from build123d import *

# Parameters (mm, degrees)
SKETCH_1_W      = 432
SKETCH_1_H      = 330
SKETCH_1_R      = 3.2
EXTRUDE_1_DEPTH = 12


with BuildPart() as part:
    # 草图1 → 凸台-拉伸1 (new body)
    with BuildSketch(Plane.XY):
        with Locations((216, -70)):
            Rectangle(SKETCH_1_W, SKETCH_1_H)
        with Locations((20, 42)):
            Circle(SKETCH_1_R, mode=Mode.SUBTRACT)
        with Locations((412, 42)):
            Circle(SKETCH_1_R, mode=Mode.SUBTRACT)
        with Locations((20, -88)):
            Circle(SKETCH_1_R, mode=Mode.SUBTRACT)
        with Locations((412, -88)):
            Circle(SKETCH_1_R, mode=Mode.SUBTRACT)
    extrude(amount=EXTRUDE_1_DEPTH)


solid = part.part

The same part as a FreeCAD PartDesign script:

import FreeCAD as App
import Part
import Sketcher
from FreeCAD import Vector
Q = App.Units.Quantity


def add_polygon(sketch, points):
    """Adds a closed chain of lines whose ends are joined by coincident constraints."""
    first, n = sketch.GeometryCount, len(points)
    for a, b in zip(points, points[1:] + points[:1]):
        sketch.addGeometry(Part.LineSegment(App.Vector(*a, 0), App.Vector(*b, 0)), False)
    for i in range(n):
        sketch.addConstraint(Sketcher.Constraint("Coincident", first + i, 2, first + (i + 1) % n, 1))

doc = App.newDocument("Part")
body = doc.addObject("PartDesign::Body", "Body")

# Sketch on XY plane
sketch1 = doc.addObject("Sketcher::SketchObject", "Sketch")
body.addObject(sketch1)
sketch1.AttachmentSupport = (doc.XY_Plane, [""])
sketch1.MapMode = "FlatFace"
add_polygon(sketch1, [(0, 95), (0, -235), (432, -235), (432, 95)])  # lines 0-3
sketch1.addGeometry(Part.Circle(Vector(20, -88, 0), Vector(0, 0, 1), 3.2), False)  # 4
sketch1.addGeometry(Part.Circle(Vector(412, -88, 0), Vector(0, 0, 1), 3.2), False)  # 5
sketch1.addGeometry(Part.Circle(Vector(20, 42, 0), Vector(0, 0, 1), 3.2), False)  # 6
sketch1.addGeometry(Part.Circle(Vector(412, 42, 0), Vector(0, 0, 1), 3.2), False)  # 7
sketch1.addConstraint([
    Sketcher.Constraint("Vertical", 0),
    Sketcher.Constraint("Horizontal", 1),
    Sketcher.Constraint("Vertical", 2),
    Sketcher.Constraint("Horizontal", 3),
    Sketcher.Constraint("Equal", 4, 5),
    Sketcher.Constraint("Equal", 5, 6),
    Sketcher.Constraint("Equal", 6, 7),
    Sketcher.Constraint("PointOnObject", 0, 2, -2),
    Sketcher.Constraint("Horizontal", 4, 3, 5, 3),
    Sketcher.Constraint("Horizontal", 6, 3, 7, 3),
    Sketcher.Constraint("Vertical", 4, 3, 6, 3),
    Sketcher.Constraint("Vertical", 5, 3, 7, 3),
    Sketcher.Constraint("Diameter", 4, Q("6.4 mm")),
    Sketcher.Constraint("DistanceX", 1, 1, 1, 2, Q("432 mm")),
    Sketcher.Constraint("DistanceY", 0, 2, 0, 1, Q("330 mm")),
    Sketcher.Constraint("DistanceX", -1, 1, 4, 3, Q("20 mm")),
    Sketcher.Constraint("DistanceY", 4, 3, -1, 1, Q("88 mm")),
    Sketcher.Constraint("DistanceX", -1, 1, 5, 3, Q("412 mm")),
    Sketcher.Constraint("DistanceY", -1, 1, 6, 3, Q("42 mm")),
    Sketcher.Constraint("DistanceY", 0, 2, -1, 1, Q("235 mm")),
])
pad1 = doc.addObject("PartDesign::Pad", "Pad")
body.addObject(pad1)
pad1.Profile = sketch1
pad1.Length = 12

doc.recompute()
